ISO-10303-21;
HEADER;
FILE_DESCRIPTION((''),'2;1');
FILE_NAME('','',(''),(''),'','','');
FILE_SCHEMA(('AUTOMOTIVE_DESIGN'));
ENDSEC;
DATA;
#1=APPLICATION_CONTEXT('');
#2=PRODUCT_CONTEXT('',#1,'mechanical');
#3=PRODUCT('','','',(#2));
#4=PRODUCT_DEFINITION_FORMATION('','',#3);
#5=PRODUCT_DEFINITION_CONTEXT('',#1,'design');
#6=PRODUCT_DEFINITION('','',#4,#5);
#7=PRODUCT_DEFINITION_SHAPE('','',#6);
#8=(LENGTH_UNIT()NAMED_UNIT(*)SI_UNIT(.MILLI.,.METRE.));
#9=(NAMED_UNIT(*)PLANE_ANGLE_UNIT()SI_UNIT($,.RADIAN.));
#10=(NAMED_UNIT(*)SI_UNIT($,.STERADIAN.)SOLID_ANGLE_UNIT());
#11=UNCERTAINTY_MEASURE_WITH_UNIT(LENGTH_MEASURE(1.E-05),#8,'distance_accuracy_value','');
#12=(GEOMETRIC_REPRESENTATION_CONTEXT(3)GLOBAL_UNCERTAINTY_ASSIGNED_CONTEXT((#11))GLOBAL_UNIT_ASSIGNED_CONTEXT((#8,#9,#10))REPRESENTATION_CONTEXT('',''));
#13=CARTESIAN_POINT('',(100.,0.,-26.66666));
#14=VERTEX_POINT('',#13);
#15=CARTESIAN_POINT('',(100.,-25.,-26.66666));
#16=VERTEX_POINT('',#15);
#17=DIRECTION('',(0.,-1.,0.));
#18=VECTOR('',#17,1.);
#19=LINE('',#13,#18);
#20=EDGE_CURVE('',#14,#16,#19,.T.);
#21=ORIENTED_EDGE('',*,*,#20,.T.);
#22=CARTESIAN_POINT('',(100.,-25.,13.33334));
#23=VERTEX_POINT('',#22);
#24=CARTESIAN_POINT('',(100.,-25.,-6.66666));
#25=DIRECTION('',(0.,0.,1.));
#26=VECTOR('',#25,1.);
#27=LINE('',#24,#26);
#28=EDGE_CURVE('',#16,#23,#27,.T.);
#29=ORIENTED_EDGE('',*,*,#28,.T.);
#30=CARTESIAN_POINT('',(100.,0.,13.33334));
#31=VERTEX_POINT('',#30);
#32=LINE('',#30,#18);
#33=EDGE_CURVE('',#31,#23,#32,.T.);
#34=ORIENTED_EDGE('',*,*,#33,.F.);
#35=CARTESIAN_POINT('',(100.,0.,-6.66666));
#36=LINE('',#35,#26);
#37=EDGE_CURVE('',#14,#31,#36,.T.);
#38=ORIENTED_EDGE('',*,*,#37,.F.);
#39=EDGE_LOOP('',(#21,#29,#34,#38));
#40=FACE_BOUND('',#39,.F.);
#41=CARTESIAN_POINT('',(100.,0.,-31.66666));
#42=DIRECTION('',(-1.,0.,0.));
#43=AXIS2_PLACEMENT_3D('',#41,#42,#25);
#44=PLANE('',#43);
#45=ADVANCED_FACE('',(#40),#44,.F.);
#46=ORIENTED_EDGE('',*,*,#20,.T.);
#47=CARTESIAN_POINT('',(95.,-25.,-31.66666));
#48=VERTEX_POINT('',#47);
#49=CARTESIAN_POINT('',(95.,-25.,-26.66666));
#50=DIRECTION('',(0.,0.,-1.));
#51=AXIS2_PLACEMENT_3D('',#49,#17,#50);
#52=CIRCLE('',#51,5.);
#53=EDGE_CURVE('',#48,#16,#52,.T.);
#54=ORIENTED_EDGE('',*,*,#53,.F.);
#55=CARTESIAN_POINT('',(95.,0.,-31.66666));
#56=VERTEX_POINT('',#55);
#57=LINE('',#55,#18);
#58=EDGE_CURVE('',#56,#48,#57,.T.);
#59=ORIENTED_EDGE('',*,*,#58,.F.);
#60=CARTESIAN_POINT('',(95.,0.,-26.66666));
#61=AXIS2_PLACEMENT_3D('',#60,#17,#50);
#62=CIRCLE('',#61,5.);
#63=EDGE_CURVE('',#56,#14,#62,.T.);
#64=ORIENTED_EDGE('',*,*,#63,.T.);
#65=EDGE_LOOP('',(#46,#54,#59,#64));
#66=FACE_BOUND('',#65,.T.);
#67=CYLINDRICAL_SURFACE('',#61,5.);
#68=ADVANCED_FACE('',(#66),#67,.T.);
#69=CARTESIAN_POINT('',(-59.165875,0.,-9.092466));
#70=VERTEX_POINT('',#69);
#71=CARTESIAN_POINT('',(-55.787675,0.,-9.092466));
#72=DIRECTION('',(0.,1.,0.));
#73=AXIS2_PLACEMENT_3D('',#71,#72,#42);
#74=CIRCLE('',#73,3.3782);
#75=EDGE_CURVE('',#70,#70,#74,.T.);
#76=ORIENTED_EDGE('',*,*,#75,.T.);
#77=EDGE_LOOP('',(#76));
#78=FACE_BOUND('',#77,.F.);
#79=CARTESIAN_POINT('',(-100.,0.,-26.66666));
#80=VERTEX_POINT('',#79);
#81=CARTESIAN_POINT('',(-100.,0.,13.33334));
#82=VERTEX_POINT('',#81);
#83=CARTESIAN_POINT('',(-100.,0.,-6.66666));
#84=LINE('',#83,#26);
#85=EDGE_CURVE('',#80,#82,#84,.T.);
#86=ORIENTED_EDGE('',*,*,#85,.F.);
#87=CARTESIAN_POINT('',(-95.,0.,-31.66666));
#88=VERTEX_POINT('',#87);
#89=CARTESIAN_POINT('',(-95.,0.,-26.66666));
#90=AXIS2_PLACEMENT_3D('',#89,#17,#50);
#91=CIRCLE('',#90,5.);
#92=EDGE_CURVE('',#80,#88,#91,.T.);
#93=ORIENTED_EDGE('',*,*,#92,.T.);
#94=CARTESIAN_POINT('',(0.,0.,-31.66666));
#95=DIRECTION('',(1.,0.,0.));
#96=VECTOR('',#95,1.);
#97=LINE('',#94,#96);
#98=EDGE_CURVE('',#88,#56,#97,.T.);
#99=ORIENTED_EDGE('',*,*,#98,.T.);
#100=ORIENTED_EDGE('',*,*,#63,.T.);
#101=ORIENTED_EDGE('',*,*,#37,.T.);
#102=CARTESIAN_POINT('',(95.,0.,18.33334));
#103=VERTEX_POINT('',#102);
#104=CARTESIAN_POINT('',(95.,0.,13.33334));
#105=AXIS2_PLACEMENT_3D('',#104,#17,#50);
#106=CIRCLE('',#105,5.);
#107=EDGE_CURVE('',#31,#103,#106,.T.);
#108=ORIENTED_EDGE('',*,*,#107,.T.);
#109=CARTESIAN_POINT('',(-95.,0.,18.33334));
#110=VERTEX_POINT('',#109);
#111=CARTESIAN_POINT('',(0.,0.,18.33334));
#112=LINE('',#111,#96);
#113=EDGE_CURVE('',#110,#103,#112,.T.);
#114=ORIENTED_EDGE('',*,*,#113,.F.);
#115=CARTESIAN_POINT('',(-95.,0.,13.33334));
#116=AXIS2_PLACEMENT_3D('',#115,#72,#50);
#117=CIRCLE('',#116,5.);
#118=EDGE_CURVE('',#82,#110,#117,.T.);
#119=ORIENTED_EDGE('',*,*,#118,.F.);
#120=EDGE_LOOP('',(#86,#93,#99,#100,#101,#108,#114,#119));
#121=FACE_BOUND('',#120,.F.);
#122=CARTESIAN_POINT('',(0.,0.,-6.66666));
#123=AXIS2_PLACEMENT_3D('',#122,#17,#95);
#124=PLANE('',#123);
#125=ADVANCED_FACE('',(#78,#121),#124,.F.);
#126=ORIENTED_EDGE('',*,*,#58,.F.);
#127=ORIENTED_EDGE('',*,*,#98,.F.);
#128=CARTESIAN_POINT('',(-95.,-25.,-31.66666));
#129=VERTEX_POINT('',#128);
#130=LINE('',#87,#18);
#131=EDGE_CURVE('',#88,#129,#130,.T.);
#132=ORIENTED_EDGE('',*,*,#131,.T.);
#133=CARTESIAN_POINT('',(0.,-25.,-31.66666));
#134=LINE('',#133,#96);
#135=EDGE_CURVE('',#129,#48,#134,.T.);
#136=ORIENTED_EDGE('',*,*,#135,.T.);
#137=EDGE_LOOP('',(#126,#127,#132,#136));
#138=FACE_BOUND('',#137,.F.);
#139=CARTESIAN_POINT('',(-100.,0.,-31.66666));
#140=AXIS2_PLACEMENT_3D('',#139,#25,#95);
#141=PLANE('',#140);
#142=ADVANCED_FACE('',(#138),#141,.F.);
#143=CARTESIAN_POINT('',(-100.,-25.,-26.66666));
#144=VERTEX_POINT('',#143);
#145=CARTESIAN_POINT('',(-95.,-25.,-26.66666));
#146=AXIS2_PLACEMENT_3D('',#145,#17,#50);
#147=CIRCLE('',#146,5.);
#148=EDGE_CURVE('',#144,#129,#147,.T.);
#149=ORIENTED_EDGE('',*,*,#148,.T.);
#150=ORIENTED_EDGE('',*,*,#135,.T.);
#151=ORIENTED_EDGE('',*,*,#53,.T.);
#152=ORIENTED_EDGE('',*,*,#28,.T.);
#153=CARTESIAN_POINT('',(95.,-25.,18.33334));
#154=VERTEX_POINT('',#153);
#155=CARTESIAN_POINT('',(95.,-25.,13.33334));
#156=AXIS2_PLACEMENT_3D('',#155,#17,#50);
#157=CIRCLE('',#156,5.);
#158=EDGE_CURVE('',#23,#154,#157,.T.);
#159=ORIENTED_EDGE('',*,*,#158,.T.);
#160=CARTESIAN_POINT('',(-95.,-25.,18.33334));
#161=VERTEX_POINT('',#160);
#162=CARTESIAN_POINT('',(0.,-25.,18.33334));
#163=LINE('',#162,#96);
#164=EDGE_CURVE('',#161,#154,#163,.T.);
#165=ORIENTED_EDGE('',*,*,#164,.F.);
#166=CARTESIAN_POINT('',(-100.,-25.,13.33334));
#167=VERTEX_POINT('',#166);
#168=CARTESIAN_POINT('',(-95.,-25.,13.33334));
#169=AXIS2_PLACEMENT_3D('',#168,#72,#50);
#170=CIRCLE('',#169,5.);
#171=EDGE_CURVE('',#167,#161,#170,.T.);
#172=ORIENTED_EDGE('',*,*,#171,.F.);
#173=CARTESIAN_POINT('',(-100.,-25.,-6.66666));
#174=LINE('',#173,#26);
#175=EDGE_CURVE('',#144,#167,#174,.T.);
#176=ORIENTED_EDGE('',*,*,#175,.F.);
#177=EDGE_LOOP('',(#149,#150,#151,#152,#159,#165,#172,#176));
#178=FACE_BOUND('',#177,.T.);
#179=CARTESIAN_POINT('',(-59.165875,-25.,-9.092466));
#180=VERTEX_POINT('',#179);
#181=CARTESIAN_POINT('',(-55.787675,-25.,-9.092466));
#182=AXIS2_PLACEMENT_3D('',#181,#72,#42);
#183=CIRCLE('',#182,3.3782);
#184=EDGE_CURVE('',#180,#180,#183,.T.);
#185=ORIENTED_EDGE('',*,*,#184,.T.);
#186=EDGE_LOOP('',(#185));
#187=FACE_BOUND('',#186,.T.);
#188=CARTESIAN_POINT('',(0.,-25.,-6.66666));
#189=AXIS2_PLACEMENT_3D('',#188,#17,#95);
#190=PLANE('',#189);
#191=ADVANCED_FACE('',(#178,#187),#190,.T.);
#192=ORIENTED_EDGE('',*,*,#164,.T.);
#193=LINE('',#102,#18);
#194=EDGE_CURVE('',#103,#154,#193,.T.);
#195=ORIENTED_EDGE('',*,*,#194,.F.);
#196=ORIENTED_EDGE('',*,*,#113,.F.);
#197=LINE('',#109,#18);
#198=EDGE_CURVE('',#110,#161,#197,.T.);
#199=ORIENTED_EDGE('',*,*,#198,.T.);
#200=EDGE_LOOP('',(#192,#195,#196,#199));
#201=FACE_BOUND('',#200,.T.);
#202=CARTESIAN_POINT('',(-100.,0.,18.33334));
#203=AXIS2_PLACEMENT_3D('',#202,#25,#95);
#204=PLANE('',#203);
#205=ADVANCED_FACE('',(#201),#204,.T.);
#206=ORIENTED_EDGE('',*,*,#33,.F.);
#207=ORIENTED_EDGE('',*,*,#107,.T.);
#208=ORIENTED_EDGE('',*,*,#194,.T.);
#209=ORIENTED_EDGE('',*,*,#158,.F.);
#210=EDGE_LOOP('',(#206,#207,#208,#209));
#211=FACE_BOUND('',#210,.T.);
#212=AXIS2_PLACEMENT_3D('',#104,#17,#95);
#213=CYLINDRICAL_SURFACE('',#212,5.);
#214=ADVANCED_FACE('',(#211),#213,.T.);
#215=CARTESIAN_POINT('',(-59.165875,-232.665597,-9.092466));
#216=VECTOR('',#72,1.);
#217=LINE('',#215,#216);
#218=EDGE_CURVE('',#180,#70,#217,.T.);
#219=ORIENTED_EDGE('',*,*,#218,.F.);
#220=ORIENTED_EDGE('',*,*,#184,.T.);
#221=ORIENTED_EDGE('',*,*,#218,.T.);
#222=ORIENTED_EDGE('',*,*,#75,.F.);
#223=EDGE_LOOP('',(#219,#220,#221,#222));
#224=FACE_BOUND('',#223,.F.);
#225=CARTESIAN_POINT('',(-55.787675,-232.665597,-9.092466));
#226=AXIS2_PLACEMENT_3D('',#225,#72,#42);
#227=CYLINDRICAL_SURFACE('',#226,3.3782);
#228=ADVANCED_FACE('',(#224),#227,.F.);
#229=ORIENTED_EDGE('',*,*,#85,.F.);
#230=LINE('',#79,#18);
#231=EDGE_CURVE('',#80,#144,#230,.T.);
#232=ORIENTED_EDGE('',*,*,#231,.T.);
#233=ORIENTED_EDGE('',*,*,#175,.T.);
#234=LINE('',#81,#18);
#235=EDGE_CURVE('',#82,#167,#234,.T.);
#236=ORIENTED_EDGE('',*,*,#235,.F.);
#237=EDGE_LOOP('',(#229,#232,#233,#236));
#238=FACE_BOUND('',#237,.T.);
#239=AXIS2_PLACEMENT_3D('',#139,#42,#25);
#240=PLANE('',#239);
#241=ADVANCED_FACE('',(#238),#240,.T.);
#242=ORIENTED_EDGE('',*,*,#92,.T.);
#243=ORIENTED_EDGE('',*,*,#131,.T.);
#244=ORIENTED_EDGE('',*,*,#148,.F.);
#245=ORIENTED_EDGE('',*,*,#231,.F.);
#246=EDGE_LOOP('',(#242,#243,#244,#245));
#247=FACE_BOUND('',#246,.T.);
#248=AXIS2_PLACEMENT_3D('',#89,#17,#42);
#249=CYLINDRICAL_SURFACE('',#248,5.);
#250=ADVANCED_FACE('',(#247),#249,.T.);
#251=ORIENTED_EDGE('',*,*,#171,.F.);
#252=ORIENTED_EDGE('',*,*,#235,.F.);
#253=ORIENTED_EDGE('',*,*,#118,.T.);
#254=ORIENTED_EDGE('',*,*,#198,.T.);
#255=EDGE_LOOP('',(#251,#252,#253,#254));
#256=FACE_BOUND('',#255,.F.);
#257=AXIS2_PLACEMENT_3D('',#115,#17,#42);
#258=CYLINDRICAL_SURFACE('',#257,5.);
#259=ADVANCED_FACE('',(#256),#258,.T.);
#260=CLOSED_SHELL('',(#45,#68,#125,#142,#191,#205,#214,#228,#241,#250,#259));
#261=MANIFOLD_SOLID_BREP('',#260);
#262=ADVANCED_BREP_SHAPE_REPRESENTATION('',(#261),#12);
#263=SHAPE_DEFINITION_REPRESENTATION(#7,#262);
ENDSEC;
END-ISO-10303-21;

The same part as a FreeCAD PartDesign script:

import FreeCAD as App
import Part
import Sketcher
Q = App.Units.Quantity


def edges_at(feature, points):
    """Names of the edges that pass closest to the given points."""
    edges = feature.Shape.Edges
    near = lambda p: min(range(len(edges)), key=lambda i: edges[i].distToShape(Part.Vertex(*p))[0])
    return sorted({f"Edge{near(p) + 1}" for p in points})

doc = App.newDocument("Part")
body = doc.addObject("PartDesign::Body", "Body")

# Sketch on XZ plane
sketch1 = body.newObject("Sketcher::SketchObject", "Sketch")
sketch1.AttachmentSupport = (doc.getObject("XZ_Plane"), [""])
sketch1.MapMode = "FlatFace"
sketch1.addGeometry([
    Part.LineSegment(App.Vector(-100, 18, 0), App.Vector(-100, -32, 0)),
    Part.LineSegment(App.Vector(-100, -32, 0), App.Vector(100, -32, 0)),
    Part.LineSegment(App.Vector(100, -32, 0), App.Vector(100, 18, 0)),
    Part.LineSegment(App.Vector(100, 18, 0), App.Vector(-100, 18, 0)),
], False)
sketch1.addConstraint([
    Sketcher.Constraint("Coincident", 0, 2, 1, 1),
    Sketcher.Constraint("Coincident", 1, 2, 2, 1),
    Sketcher.Constraint("Coincident", 2, 2, 3, 1),
    Sketcher.Constraint("Coincident", 3, 2, 0, 1),
    Sketcher.Constraint("Vertical", 0),
    Sketcher.Constraint("Horizontal", 1),
    Sketcher.Constraint("Vertical", 2),
    Sketcher.Constraint("Horizontal", 3),
    Sketcher.Constraint("DistanceX", 1, 1, 1, 2, Q("200 mm")),
    Sketcher.Constraint("DistanceY", 0, 2, 0, 1, Q("50 mm")),
    Sketcher.Constraint("DistanceX", 0, 2, -1, 1, Q("100 mm")),
    Sketcher.Constraint("DistanceY", 0, 2, -1, 1, Q("31.66666 mm")),
])
pad1 = body.newObject("PartDesign::Pad", "Pad")
pad1.Profile = sketch1
pad1.Length = 25
doc.recompute()

fillet = body.newObject("PartDesign::Fillet", "Fillet")
fillet.Base = (pad1, edges_at(pad1, [
    (-100, -12.5, 18.333),
    (100, -12.5, 18.333),
    (100, -12.5, -31.667),
    (-100, -12.5, -31.667),
]))
fillet.Radius = 5

# Sketch on XZ plane
sketch2 = body.newObject("Sketcher::SketchObject", "Sketch001")
sketch2.AttachmentSupport = (doc.getObject("XZ_Plane"), [""])
sketch2.MapMode = "FlatFace"
sketch2.AttachmentOffset = App.Placement(App.Vector(0, 0, 25), App.Rotation())
sketch2.addGeometry(Part.Circle(App.Vector(-55.8, -9.1, 0), App.Vector(0, 0, 1), 3.4), False)
sketch2.addConstraint([
    Sketcher.Constraint("Diameter", 0, Q("6.7564 mm")),
    Sketcher.Constraint("DistanceX", 0, 3, -1, 1, Q("55.787675 mm")),
    Sketcher.Constraint("DistanceY", 0, 3, -1, 1, Q("9.092466 mm")),
])
doc.recompute()
hole = body.newObject("PartDesign::Hole", "Hole")
hole.Profile = sketch2
hole.ThreadType = "None"
hole.Diameter = 6.7564
hole.DepthType = "ThroughAll"

doc.recompute()
